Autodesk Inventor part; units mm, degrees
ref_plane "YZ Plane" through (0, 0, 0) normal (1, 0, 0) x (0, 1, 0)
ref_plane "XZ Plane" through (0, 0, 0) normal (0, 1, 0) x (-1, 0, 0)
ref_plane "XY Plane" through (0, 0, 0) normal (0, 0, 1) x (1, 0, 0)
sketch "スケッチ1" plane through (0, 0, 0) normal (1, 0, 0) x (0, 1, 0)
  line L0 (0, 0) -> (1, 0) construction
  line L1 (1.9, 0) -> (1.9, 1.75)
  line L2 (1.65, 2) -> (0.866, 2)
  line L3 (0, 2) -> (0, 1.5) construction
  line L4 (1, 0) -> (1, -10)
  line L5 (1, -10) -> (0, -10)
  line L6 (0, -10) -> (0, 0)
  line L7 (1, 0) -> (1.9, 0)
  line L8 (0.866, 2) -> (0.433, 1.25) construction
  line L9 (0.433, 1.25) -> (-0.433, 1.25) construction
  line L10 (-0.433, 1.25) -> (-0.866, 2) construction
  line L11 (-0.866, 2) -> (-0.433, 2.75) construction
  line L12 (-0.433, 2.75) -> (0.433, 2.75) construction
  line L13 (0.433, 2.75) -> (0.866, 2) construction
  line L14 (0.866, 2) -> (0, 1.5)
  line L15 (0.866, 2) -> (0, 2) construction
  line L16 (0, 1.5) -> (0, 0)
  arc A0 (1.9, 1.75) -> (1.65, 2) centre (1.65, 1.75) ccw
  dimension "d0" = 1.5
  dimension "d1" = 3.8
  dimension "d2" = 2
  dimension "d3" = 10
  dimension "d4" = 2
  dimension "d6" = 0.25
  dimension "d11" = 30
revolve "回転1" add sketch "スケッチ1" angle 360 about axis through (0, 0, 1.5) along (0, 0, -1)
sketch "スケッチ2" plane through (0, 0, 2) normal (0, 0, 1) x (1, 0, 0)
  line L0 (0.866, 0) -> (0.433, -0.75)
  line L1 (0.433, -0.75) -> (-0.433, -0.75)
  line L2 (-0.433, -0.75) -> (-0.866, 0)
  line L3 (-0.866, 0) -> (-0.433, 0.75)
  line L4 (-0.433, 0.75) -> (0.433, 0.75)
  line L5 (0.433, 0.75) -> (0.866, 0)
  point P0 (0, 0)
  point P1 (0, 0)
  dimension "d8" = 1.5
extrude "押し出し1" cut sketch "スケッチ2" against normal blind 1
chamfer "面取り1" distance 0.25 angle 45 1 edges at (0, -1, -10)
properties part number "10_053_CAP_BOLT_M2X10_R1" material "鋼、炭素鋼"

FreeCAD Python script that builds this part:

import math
import FreeCAD as App
import Part
import Sketcher

V = App.Vector
Q = App.Units.Quantity


def edges_at(feature, points):
    """Names of the edges that pass closest to the given points."""
    edges = feature.Shape.Edges
    near = lambda p: min(range(len(edges)), key=lambda i: edges[i].distToShape(Part.Vertex(*p))[0])
    return sorted({f"Edge{near(p) + 1}" for p in points})


def add_polygon(sketch, points):
    """Adds a closed chain of lines whose ends are joined by coincident constraints."""
    first, n = sketch.GeometryCount, len(points)
    for a, b in zip(points, points[1:] + points[:1]):
        sketch.addGeometry(Part.LineSegment(App.Vector(*a, 0), App.Vector(*b, 0)), False)
    for i in range(n):
        sketch.addConstraint(Sketcher.Constraint("Coincident", first + i, 2, first + (i + 1) % n, 1))

doc = App.newDocument("Part")
body = doc.addObject("PartDesign::Body", "Body")

sketch1 = body.newObject("Sketcher::SketchObject", "Sketch")
sketch1.AttachmentSupport = (doc.getObject("YZ_Plane"), [""])
sketch1.MapMode = "FlatFace"
sketch1.addGeometry([
    Part.LineSegment(V(1, 0, 0), V(1.9, 0, 0)),
    Part.LineSegment(V(1.9, 0, 0), V(1.9, 1.75, 0)),
    Part.ArcOfCircle(Part.Circle(V(1.65, 1.75, 0), V(0, 0, 1), 0.25), math.radians(0), math.radians(90)),
    Part.LineSegment(V(1.65, 2, 0), V(0.866, 2, 0)),
    Part.LineSegment(V(0.866, 2, 0), V(0, 1.5, 0)),
    Part.LineSegment(V(0, 1.5, 0), V(0, -10, 0)),
    Part.LineSegment(V(0, -10, 0), V(1, -10, 0)),
    Part.LineSegment(V(1, -10, 0), V(1, 0, 0)),
], False)
sketch1.addConstraint([
    Sketcher.Constraint("Coincident", 0, 2, 1, 1),
    Sketcher.Constraint("Tangent", 1, 2, 2, 1),
    Sketcher.Constraint("Tangent", 2, 2, 3, 1),
    Sketcher.Constraint("Coincident", 3, 2, 4, 1),
    Sketcher.Constraint("Coincident", 4, 2, 5, 1),
    Sketcher.Constraint("Coincident", 5, 2, 6, 1),
    Sketcher.Constraint("Coincident", 6, 2, 7, 1),
    Sketcher.Constraint("Coincident", 7, 2, 0, 1),
    Sketcher.Constraint("Horizontal", 0),
    Sketcher.Constraint("Vertical", 1),
    Sketcher.Constraint("Horizontal", 3),
    Sketcher.Constraint("Vertical", 5),
    Sketcher.Constraint("Horizontal", 6),
    Sketcher.Constraint("Vertical", 7),
    Sketcher.Constraint("PointOnObject", 0, 2, -1),
    Sketcher.Constraint("PointOnObject", 4, 2, -2),
    Sketcher.Constraint("DistanceY", 7, 1, 7, 2, Q("10 mm")),
    Sketcher.Constraint("Radius", 2, Q("0.25 mm")),
    Sketcher.Constraint("DistanceY", -1, 1, 2, 2, Q("2 mm")),
    Sketcher.Constraint("DistanceY", -1, 1, 4, 2, Q("1.5 mm")),
    Sketcher.Constraint("DistanceX", 6, 1, 6, 2, Q("1 mm")),
    Sketcher.Constraint("Angle", 4, Q("-149.9993 deg")),
    Sketcher.Constraint("DistanceX", 0, 1, 0, 2, Q("0.9 mm")),
])
revolution = body.newObject("PartDesign::Revolution", "Revolution")
revolution.Profile = sketch1
revolution.ReferenceAxis = (sketch1, ["V_Axis"])
revolution.Angle = 360

sketch2 = body.newObject("Sketcher::SketchObject", "Sketch001")
sketch2.AttachmentSupport = (doc.getObject("XY_Plane"), [""])
sketch2.MapMode = "FlatFace"
sketch2.AttachmentOffset = App.Placement(V(0, 0, 2), App.Rotation())
add_polygon(sketch2, [(0.433, -0.75), (0.866, 0), (0.433, 0.75), (-0.433, 0.75), (-0.866, 0), (-0.433, -0.75)])
sketch2.addConstraint([
    Sketcher.Constraint("Horizontal", 2),
    Sketcher.Constraint("Horizontal", 5),
    Sketcher.Constraint("Symmetric", 0, 2, 3, 2, -1, 1),
    Sketcher.Constraint("Symmetric", 1, 2, 4, 2, -1, 1),
    Sketcher.Constraint("PointOnObject", 0, 2, -1),
    Sketcher.Constraint("Parallel", 0, 3),
    Sketcher.Constraint("Vertical", 2, 2, 4, 2),
    Sketcher.Constraint("DistanceY", 4, 2, 2, 2, Q("1.5 mm")),
    Sketcher.Constraint("Angle", 0, Q("60.0007 deg")),
    Sketcher.Constraint("DistanceX", 2, 2, 2, 1, Q("0.866 mm")),
])
pocket1 = body.newObject("PartDesign::Pocket", "Pocket")
pocket1.Profile = sketch2
pocket1.Length = 1
doc.recompute()

chamfer = body.newObject("PartDesign::Chamfer", "Chamfer")
chamfer.Base = (pocket1, edges_at(pocket1, [(0, -1, -10)]))
chamfer.Size = 0.25

doc.recompute()
